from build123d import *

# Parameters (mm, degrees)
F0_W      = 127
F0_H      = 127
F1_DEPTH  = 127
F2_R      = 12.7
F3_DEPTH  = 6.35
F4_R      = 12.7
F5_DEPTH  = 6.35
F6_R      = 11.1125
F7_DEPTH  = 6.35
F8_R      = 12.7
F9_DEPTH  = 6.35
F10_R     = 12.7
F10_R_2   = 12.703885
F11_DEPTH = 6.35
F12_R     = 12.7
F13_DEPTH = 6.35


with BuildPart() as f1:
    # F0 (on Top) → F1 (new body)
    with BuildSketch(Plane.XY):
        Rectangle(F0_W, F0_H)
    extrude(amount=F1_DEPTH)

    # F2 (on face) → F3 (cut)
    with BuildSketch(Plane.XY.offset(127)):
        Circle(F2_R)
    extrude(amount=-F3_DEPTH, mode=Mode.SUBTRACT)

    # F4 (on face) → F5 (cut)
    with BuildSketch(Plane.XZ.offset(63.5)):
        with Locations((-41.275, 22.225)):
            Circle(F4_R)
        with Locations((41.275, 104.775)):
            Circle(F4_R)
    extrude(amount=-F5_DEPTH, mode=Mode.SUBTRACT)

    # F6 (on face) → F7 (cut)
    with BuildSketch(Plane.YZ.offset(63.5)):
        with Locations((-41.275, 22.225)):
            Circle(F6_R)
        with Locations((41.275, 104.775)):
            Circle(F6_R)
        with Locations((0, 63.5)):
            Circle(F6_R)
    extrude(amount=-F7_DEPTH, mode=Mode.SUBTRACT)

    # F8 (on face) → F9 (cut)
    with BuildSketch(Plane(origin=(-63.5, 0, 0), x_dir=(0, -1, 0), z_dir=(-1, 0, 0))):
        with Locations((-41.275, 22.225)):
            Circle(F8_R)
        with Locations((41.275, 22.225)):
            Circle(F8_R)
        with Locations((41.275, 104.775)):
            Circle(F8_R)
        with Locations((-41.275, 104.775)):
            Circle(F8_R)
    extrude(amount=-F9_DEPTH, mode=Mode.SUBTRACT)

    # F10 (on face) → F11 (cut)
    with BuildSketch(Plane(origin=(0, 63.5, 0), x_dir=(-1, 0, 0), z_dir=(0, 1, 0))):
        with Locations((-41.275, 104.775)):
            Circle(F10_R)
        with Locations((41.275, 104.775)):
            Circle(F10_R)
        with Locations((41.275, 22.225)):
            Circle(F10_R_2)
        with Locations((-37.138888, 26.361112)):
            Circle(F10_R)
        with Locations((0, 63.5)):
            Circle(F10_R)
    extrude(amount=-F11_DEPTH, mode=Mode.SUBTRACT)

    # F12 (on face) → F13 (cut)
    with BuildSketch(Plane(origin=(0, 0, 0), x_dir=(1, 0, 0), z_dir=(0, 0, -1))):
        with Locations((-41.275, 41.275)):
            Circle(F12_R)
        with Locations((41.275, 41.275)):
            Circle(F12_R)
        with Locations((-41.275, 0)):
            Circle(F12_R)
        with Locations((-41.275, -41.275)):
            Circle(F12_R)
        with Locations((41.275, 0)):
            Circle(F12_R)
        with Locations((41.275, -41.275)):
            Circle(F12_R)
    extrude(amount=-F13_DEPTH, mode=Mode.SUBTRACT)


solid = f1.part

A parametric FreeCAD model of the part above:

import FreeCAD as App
import Part
import Sketcher

V = App.Vector
Q = App.Units.Quantity

doc = App.newDocument("Part")
body = doc.addObject("PartDesign::Body", "Body")

sketch1 = body.newObject("Sketcher::SketchObject", "Sketch")
sketch1.AttachmentSupport = (doc.getObject("XY_Plane"), [""])
sketch1.MapMode = "FlatFace"
sketch1.addGeometry([
    Part.LineSegment(V(-64, 64, 0), V(-64, -64, 0)),
    Part.LineSegment(V(-64, -64, 0), V(64, -64, 0)),
    Part.LineSegment(V(64, -64, 0), V(64, 64, 0)),
    Part.LineSegment(V(64, 64, 0), V(-64, 64, 0)),
], False)
sketch1.addConstraint([
    Sketcher.Constraint("Coincident", 0, 2, 1, 1),
    Sketcher.Constraint("Coincident", 1, 2, 2, 1),
    Sketcher.Constraint("Coincident", 2, 2, 3, 1),
    Sketcher.Constraint("Coincident", 3, 2, 0, 1),
    Sketcher.Constraint("Vertical", 0),
    Sketcher.Constraint("Horizontal", 1),
    Sketcher.Constraint("Vertical", 2),
    Sketcher.Constraint("Horizontal", 3),
    Sketcher.Constraint("Symmetric", 0, 2, 2, 2, -1, 1),
    Sketcher.Constraint("Equal", 3, 0),
    Sketcher.Constraint("DistanceX", 1, 1, 1, 2, Q("5 in")),
])
pad1 = body.newObject("PartDesign::Pad", "Pad")
pad1.Profile = sketch1
pad1.Length = Q("5 in")

sketch2 = body.newObject("Sketcher::SketchObject", "Sketch001")
sketch2.AttachmentSupport = (doc.getObject("XY_Plane"), [""])
sketch2.MapMode = "FlatFace"
sketch2.AttachmentOffset = App.Placement(V(0, 0, 5 * 25.4), App.Rotation())
sketch2.addGeometry(Part.Circle(V(0, 0, 0), V(0, 0, 1), 13), False)
sketch2.addConstraint([
    Sketcher.Constraint("Coincident", 0, 3, -1, 1),
    Sketcher.Constraint("Diameter", 0, Q("1 in")),
])
pocket1 = body.newObject("PartDesign::Pocket", "Pocket")
pocket1.Profile = sketch2
pocket1.Length = Q("0.25 in")

sketch3 = body.newObject("Sketcher::SketchObject", "Sketch002")
sketch3.AttachmentSupport = (doc.getObject("XZ_Plane"), [""])
sketch3.MapMode = "FlatFace"
sketch3.AttachmentOffset = App.Placement(V(0, 0, 2.5 * 25.4), App.Rotation())
sketch3.addGeometry([
    Part.Circle(V(-41, 22, 0), V(0, 0, 1), 13),
    Part.Circle(V(41, 105, 0), V(0, 0, 1), 13),
], False)
sketch3.addConstraint([
    Sketcher.Constraint("Equal", 0, 1),
    Sketcher.Constraint("Diameter", 0, Q("1 in")),
    Sketcher.Constraint("DistanceX", 0, 3, 1, 3, Q("3.25 in")),
    Sketcher.Constraint("DistanceY", 0, 3, 1, 3, Q("3.25 in")),
    Sketcher.Constraint("DistanceX", 0, 3, -1, 1, Q("1.625 in")),
    Sketcher.Constraint("DistanceY", -1, 1, 0, 3, Q("0.875 in")),
])
pocket2 = body.newObject("PartDesign::Pocket", "Pocket001")
pocket2.Profile = sketch3
pocket2.Length = Q("0.25 in")

sketch4 = body.newObject("Sketcher::SketchObject", "Sketch003")
sketch4.AttachmentSupport = (doc.getObject("YZ_Plane"), [""])
sketch4.MapMode = "FlatFace"
sketch4.AttachmentOffset = App.Placement(V(0, 0, 2.5 * 25.4), App.Rotation())
sketch4.addGeometry([
    Part.Circle(V(-41, 22, 0), V(0, 0, 1), 11),
    Part.Circle(V(41, 105, 0), V(0, 0, 1), 11),
    Part.Circle(V(0, 64, 0), V(0, 0, 1), 11),
], False)
sketch4.addConstraint([
    Sketcher.Constraint("Equal", 0, 1),
    Sketcher.Constraint("Equal", 1, 2),
    Sketcher.Constraint("PointOnObject", 2, 3, -2),
    Sketcher.Constraint("Diameter", 0, Q("0.875 in")),
    Sketcher.Constraint("DistanceY", -1, 1, 2, 3, Q("2.5 in")),
    Sketcher.Constraint("DistanceX", 0, 3, 1, 3, Q("3.25 in")),
    Sketcher.Constraint("DistanceY", 0, 3, 1, 3, Q("3.25 in")),
    Sketcher.Constraint("DistanceX", 0, 3, -1, 1, Q("1.625 in")),
    Sketcher.Constraint("DistanceY", -1, 1, 0, 3, Q("0.875 in")),
])
pocket3 = body.newObject("PartDesign::Pocket", "Pocket002")
pocket3.Profile = sketch4
pocket3.Length = Q("0.25 in")

sketch5 = body.newObject("Sketcher::SketchObject", "Sketch004")
sketch5.AttachmentSupport = (doc.getObject("YZ_Plane"), [""])
sketch5.MapMode = "FlatFace"
sketch5.AttachmentOffset = App.Placement(V(0, 0, -2.5 * 25.4), App.Rotation())
sketch5.addGeometry([
    Part.Circle(V(41, 22, 0), V(0, 0, 1), 13),
    Part.Circle(V(-41, 22, 0), V(0, 0, 1), 13),
    Part.Circle(V(-41, 105, 0), V(0, 0, 1), 13),
    Part.Circle(V(41, 105, 0), V(0, 0, 1), 13),
], False)
sketch5.addConstraint([
    Sketcher.Constraint("Equal", 0, 1),
    Sketcher.Constraint("Equal", 1, 2),
    Sketcher.Constraint("Equal", 2, 3),
    Sketcher.Constraint("Symmetric", 0, 3, 1, 3, -2),
    Sketcher.Constraint("Symmetric", 2, 3, 3, 3, -2),
    Sketcher.Constraint("Vertical", 1, 3, 2, 3),
    Sketcher.Constraint("Diameter", 0, Q("1 in")),
    Sketcher.Constraint("DistanceX", 1, 3, 0, 3, Q("3.25 in")),
    Sketcher.Constraint("DistanceY", 1, 3, 2, 3, Q("3.25 in")),
    Sketcher.Constraint("DistanceY", -1, 1, 0, 3, Q("0.875 in")),
])
pocket4 = body.newObject("PartDesign::Pocket", "Pocket003")
pocket4.Profile = sketch5
pocket4.Length = Q("0.25 in")
pocket4.Reversed = True

sketch6 = body.newObject("Sketcher::SketchObject", "Sketch005")
sketch6.AttachmentSupport = (doc.getObject("XZ_Plane"), [""])
sketch6.MapMode = "FlatFace"
sketch6.AttachmentOffset = App.Placement(V(0, 0, -2.5 * 25.4), App.Rotation())
sketch6.addGeometry([
    Part.Circle(V(41, 105, 0), V(0, 0, 1), 13),
    Part.Circle(V(-41, 105, 0), V(0, 0, 1), 13),
    Part.Circle(V(-41, 22, 0), V(0, 0, 1), 13),
    Part.Circle(V(37, 26, 0), V(0, 0, 1), 13),
    Part.Circle(V(0, 64, 0), V(0, 0, 1), 13),
], False)
sketch6.addConstraint([
    Sketcher.Constraint("Equal", 0, 1),
    Sketcher.Constraint("Equal", 1, 3),
    Sketcher.Constraint("Equal", 3, 4),
    Sketcher.Constraint("Symmetric", 0, 3, 1, 3, -2),
    Sketcher.Constraint("PointOnObject", 4, 3, -2),
    Sketcher.Constraint("Vertical", 1, 3, 2, 3),
    Sketcher.Constraint("Diameter", 0, Q("1 in")),
    Sketcher.Constraint("DistanceY", -1, 1, 4, 3, Q("2.5 in")),
    Sketcher.Constraint("DistanceX", 1, 3, 0, 3, Q("3.25 in")),
    Sketcher.Constraint("DistanceY", 2, 3, 1, 3, Q("3.25 in")),
    Sketcher.Constraint("Diameter", 2, 25.40777),
    Sketcher.Constraint("DistanceY", -1, 1, 0, 3, Q("4.125 in")),
    Sketcher.Constraint("DistanceY", -1, 1, 3, 3, 26.361112),
    Sketcher.Constraint("DistanceX", 2, 3, 3, 3, 78.413888),
])
pocket5 = body.newObject("PartDesign::Pocket", "Pocket004")
pocket5.Profile = sketch6
pocket5.Length = Q("0.25 in")
pocket5.Reversed = True

sketch7 = body.newObject("Sketcher::SketchObject", "Sketch006")
sketch7.AttachmentSupport = (doc.getObject("XY_Plane"), [""])
sketch7.MapMode = "FlatFace"
sketch7.addGeometry([
    Part.Circle(V(-41, -41, 0), V(0, 0, 1), 13),
    Part.Circle(V(41, -41, 0), V(0, 0, 1), 13),
    Part.Circle(V(-41, 0, 0), V(0, 0, 1), 13),
    Part.Circle(V(-41, 41, 0), V(0, 0, 1), 13),
    Part.Circle(V(41, 0, 0), V(0, 0, 1), 13),
    Part.Circle(V(41, 41, 0), V(0, 0, 1), 13),
], False)
sketch7.addConstraint([
    Sketcher.Constraint("Equal", 0, 1),
    Sketcher.Constraint("Equal", 1, 2),
    Sketcher.Constraint("Equal", 2, 3),
    Sketcher.Constraint("Equal", 3, 4),
    Sketcher.Constraint("Equal", 4, 5),
    Sketcher.Constraint("Symmetric", 1, 3, 3, 3, -1, 1),
    Sketcher.Constraint("Symmetric", 2, 3, 4, 3, -1, 1),
    Sketcher.Constraint("Symmetric", 0, 3, 5, 3, -1, 1),
    Sketcher.Constraint("Symmetric", 0, 3, 1, 3, -2),
    Sketcher.Constraint("PointOnObject", 2, 3, -1),
    Sketcher.Constraint("Vertical", 0, 3, 2, 3),
    Sketcher.Constraint("Diameter", 0, Q("1 in")),
    Sketcher.Constraint("DistanceX", 0, 3, 1, 3, Q("3.25 in")),
    Sketcher.Constraint("DistanceY", 0, 3, 3, 3, Q("3.25 in")),
])
pocket6 = body.newObject("PartDesign::Pocket", "Pocket005")
pocket6.Profile = sketch7
pocket6.Length = Q("0.25 in")
pocket6.Reversed = True

doc.recompute()
